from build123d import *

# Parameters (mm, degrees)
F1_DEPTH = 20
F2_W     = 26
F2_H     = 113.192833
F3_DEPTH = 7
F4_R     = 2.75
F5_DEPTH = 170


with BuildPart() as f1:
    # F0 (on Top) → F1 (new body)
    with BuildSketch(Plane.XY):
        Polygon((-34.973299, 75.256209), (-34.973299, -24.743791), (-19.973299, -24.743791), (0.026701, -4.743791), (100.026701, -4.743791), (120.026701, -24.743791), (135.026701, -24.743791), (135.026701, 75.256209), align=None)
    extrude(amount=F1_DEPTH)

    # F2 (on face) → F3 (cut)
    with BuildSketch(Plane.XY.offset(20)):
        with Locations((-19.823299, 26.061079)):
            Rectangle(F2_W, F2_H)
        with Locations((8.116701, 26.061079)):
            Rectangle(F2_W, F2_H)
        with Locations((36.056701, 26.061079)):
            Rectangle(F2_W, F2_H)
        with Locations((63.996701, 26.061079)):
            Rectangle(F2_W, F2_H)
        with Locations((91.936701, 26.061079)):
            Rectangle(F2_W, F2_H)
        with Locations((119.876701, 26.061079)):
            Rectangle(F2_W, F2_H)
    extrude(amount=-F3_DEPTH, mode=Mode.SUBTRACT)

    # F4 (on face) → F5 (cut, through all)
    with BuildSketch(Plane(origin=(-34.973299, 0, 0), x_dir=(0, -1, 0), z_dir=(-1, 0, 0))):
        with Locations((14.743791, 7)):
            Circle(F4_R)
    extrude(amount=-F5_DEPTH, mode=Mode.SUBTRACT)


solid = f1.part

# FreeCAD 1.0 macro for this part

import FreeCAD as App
import Part
import Sketcher

V = App.Vector
Q = App.Units.Quantity


def add_polygon(sketch, points):
    """Adds a closed chain of lines whose ends are joined by coincident constraints."""
    first, n = sketch.GeometryCount, len(points)
    for a, b in zip(points, points[1:] + points[:1]):
        sketch.addGeometry(Part.LineSegment(App.Vector(*a, 0), App.Vector(*b, 0)), False)
    for i in range(n):
        sketch.addConstraint(Sketcher.Constraint("Coincident", first + i, 2, first + (i + 1) % n, 1))

doc = App.newDocument("Part")
body = doc.addObject("PartDesign::Body", "Body")

# Sketch on XY plane
sketch1 = body.newObject("Sketcher::SketchObject", "Sketch")
sketch1.AttachmentSupport = (doc.getObject("XY_Plane"), [""])
sketch1.MapMode = "FlatFace"
add_polygon(sketch1, [(-35, 75), (-35, -25), (-20, -25), (0, -5), (100, -5), (120, -25), (135, -25), (135, 75)])  # lines 0-7
sketch1.addConstraint([
    Sketcher.Constraint("Vertical", 0),
    Sketcher.Constraint("Horizontal", 1),
    Sketcher.Constraint("Horizontal", 3),
    Sketcher.Constraint("Horizontal", 5),
    Sketcher.Constraint("Vertical", 6),
    Sketcher.Constraint("Horizontal", 7),
    Sketcher.Constraint("Perpendicular", 2, 4),
    Sketcher.Constraint("Horizontal", 1, 2, 4, 2),
    Sketcher.Constraint("Equal", 1, 5),
    Sketcher.Constraint("Equal", 3, 0),
    Sketcher.Constraint("Equal", 2, 4),
    Sketcher.Constraint("DistanceX", 1, 1, 1, 2, Q("15 mm")),
    Sketcher.Constraint("DistanceX", 3, 1, 3, 2, Q("100 mm")),
    Sketcher.Constraint("DistanceX", 7, 2, 7, 1, Q("170 mm")),
    Sketcher.Constraint("DistanceX", 0, 2, -1, 1, Q("34.973299 mm")),
    Sketcher.Constraint("DistanceY", 0, 2, -1, 1, Q("24.743791 mm")),
])
pad1 = body.newObject("PartDesign::Pad", "Pad")
pad1.Profile = sketch1
pad1.Length = 20

# Sketch on XY plane
sketch2 = body.newObject("Sketcher::SketchObject", "Sketch001")
sketch2.AttachmentSupport = (doc.getObject("XY_Plane"), [""])
sketch2.MapMode = "FlatFace"
sketch2.AttachmentOffset = App.Placement(V(0, 0, 20), App.Rotation())
add_polygon(sketch2, [(-33, 83), (-33, -31), (-7, -31), (-7, 83)])  # lines 0-3
add_polygon(sketch2, [(-5, 83), (-5, -31), (21, -31), (21, 83)])  # lines 4-7
add_polygon(sketch2, [(23, 83), (23, -31), (49, -31), (49, 83)])  # lines 8-11
add_polygon(sketch2, [(51, 83), (51, -31), (77, -31), (77, 83)])  # lines 12-15
add_polygon(sketch2, [(79, 83), (79, -31), (105, -31), (105, 83)])  # lines 16-19
add_polygon(sketch2, [(107, 83), (107, -31), (133, -31), (133, 83)])  # lines 20-23
sketch2.addConstraint([
    Sketcher.Constraint("Vertical", 0),
    Sketcher.Constraint("Horizontal", 1),
    Sketcher.Constraint("Vertical", 2),
    Sketcher.Constraint("Horizontal", 3),
    Sketcher.Constraint("Vertical", 4),
    Sketcher.Constraint("Horizontal", 5),
    Sketcher.Constraint("Vertical", 6),
    Sketcher.Constraint("Horizontal", 7),
    Sketcher.Constraint("Vertical", 8),
    Sketcher.Constraint("Horizontal", 9),
    Sketcher.Constraint("Vertical", 10),
    Sketcher.Constraint("Horizontal", 11),
    Sketcher.Constraint("Vertical", 12),
    Sketcher.Constraint("Horizontal", 13),
    Sketcher.Constraint("Vertical", 14),
    Sketcher.Constraint("Horizontal", 15),
    Sketcher.Constraint("Vertical", 16),
    Sketcher.Constraint("Horizontal", 17),
    Sketcher.Constraint("Vertical", 18),
    Sketcher.Constraint("Horizontal", 19),
    Sketcher.Constraint("Vertical", 20),
    Sketcher.Constraint("Horizontal", 21),
    Sketcher.Constraint("Vertical", 22),
    Sketcher.Constraint("Horizontal", 23),
    Sketcher.Constraint("Horizontal", 1, 2, 4, 2),
    Sketcher.Constraint("Horizontal", 3, 2, 6, 2),
    Sketcher.Constraint("Horizontal", 5, 2, 8, 2),
    Sketcher.Constraint("Horizontal", 7, 2, 10, 2),
    Sketcher.Constraint("Horizontal", 9, 2, 12, 2),
    Sketcher.Constraint("Horizontal", 11, 2, 14, 2),
    Sketcher.Constraint("Horizontal", 13, 2, 16, 2),
    Sketcher.Constraint("Horizontal", 15, 2, 18, 2),
    Sketcher.Constraint("Horizontal", 17, 2, 20, 2),
    Sketcher.Constraint("Horizontal", 19, 2, 22, 2),
    Sketcher.Constraint("Equal", 3, 5),
    Sketcher.Constraint("Equal", 7, 9),
    Sketcher.Constraint("Equal", 11, 13),
    Sketcher.Constraint("Equal", 15, 17),
    Sketcher.Constraint("Equal", 19, 21),
    Sketcher.Constraint("DistanceX", 1, 1, 1, 2, Q("26 mm")),
    Sketcher.Constraint("DistanceX", 1, 2, 4, 2, Q("1.94 mm")),
    Sketcher.Constraint("DistanceX", 5, 2, 8, 2, Q("1.94 mm")),
    Sketcher.Constraint("DistanceX", 9, 2, 12, 2, Q("1.94 mm")),
    Sketcher.Constraint("DistanceX", 13, 2, 16, 2, Q("1.94 mm")),
    Sketcher.Constraint("DistanceX", 17, 2, 20, 2, Q("1.94 mm")),
    Sketcher.Constraint("DistanceX", 0, 2, -1, 1, Q("32.823299 mm")),
    Sketcher.Constraint("DistanceY", 0, 2, 0, 1, Q("113.192833 mm")),
    Sketcher.Constraint("DistanceY", 0, 2, -1, 1, Q("30.535338 mm")),
])
pocket1 = body.newObject("PartDesign::Pocket", "Pocket")
pocket1.Profile = sketch2
pocket1.Length = 7

# Sketch on YZ plane
sketch3 = body.newObject("Sketcher::SketchObject", "Sketch002")
sketch3.AttachmentSupport = (doc.getObject("YZ_Plane"), [""])
sketch3.MapMode = "FlatFace"
sketch3.AttachmentOffset = App.Placement(V(0, 0, -34.973299), App.Rotation())
sketch3.addGeometry(Part.Circle(V(-14.7, 7, 0), V(0, 0, 1), 2.8), False)
sketch3.addConstraint([
    Sketcher.Constraint("Diameter", 0, Q("5.5 mm")),
    Sketcher.Constraint("DistanceY", -1, 1, 0, 3, Q("7 mm")),
    Sketcher.Constraint("DistanceX", 0, 3, -1, 1, Q("14.743791 mm")),
])
pocket2 = body.newObject("PartDesign::Pocket", "Pocket001")
pocket2.Profile = sketch3
pocket2.Type = "ThroughAll"
pocket2.Reversed = True

doc.recompute()
